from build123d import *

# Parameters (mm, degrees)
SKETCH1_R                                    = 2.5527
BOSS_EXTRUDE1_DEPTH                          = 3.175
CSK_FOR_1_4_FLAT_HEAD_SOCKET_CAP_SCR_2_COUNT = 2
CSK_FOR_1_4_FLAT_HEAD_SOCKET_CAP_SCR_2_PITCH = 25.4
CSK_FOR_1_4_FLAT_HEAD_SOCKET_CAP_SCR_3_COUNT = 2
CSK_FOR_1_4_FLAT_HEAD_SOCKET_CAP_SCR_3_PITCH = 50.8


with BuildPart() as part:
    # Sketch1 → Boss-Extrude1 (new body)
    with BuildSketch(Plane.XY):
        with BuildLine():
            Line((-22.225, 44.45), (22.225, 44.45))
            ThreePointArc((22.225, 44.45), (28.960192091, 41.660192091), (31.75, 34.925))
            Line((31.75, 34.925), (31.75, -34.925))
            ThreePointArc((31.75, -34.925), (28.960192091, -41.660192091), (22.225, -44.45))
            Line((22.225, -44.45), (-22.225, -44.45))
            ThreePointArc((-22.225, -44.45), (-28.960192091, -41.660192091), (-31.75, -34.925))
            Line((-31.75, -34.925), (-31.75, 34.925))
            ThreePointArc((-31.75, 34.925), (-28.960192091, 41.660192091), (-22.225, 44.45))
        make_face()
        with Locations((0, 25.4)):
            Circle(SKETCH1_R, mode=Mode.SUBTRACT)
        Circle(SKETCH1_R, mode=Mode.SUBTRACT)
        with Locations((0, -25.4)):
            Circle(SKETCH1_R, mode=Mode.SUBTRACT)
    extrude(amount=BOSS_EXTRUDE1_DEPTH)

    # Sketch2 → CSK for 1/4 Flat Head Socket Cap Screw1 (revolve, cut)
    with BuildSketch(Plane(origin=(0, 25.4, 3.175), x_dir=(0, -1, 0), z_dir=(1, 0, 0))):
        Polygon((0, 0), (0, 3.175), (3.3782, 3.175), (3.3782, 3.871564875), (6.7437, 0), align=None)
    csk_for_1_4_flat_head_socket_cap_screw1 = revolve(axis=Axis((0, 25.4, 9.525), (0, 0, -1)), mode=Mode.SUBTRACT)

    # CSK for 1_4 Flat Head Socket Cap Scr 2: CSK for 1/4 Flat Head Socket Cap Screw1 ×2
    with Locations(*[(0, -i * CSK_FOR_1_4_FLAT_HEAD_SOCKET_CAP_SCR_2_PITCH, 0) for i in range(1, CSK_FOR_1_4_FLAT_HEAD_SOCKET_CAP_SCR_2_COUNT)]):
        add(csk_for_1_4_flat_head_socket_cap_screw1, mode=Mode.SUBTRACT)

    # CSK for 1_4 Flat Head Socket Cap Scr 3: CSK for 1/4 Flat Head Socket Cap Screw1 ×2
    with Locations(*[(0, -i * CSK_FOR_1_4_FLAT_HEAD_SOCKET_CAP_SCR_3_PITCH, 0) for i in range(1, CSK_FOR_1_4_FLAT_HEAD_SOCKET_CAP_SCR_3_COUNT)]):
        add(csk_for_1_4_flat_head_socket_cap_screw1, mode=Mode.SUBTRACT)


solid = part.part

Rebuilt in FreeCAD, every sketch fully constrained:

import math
import FreeCAD as App
import Part
import Sketcher

V = App.Vector
Q = App.Units.Quantity


def add_polygon(sketch, points):
    """Adds a closed chain of lines whose ends are joined by coincident constraints."""
    first, n = sketch.GeometryCount, len(points)
    for a, b in zip(points, points[1:] + points[:1]):
        sketch.addGeometry(Part.LineSegment(App.Vector(*a, 0), App.Vector(*b, 0)), False)
    for i in range(n):
        sketch.addConstraint(Sketcher.Constraint("Coincident", first + i, 2, first + (i + 1) % n, 1))

doc = App.newDocument("Part")
params = doc.addObject("Spreadsheet::Sheet", "Params")
for row, (alias, value) in enumerate([
    ("sketch1_diameter", "0.201 in"),
    ("sketch1_radius", "0.375 in"),
    ("sketch1_width", "1.75 in"),
    ("sketch1_height", "2.75 in"),
    ("pad1_length", "0.125 in"),
    ("sketch2_width", "0.133 in"),
    ("sketch2_height", "0.125 in"),
    ("groove_angle", "360 deg"),
    ("linearpattern_pitch", "1 in"),
    ("linearpattern2_pitch", "2 in"),
], start=1):
    params.set(f"A{row}", alias)
    params.set(f"B{row}", "=" + value)
    params.setAlias(f"B{row}", alias)

body = doc.addObject("PartDesign::Body", "Body")

sketch1 = body.newObject("Sketcher::SketchObject", "Sketch")
sketch1.AttachmentSupport = (doc.getObject("XY_Plane"), [""])
sketch1.MapMode = "FlatFace"
sketch1.addGeometry(Part.LineSegment(V(22.2, 44.5, 0), V(-22.2, 44.5, 0)), False)
sketch1.addGeometry(Part.ArcOfCircle(Part.Circle(V(-22.2, 34.9, 0), V(0, 0, 1), 9.5), math.radians(90), math.radians(180)), False)
sketch1.addGeometry(Part.LineSegment(V(-31.8, 34.9, 0), V(-31.8, -34.9, 0)), False)
sketch1.addGeometry(Part.ArcOfCircle(Part.Circle(V(-22.2, -34.9, 0), V(0, 0, 1), 9.5), math.radians(180), math.radians(270)), False)
sketch1.addGeometry(Part.LineSegment(V(-22.2, -44.5, 0), V(22.2, -44.5, 0)), False)
sketch1.addGeometry(Part.ArcOfCircle(Part.Circle(V(22.2, -34.9, 0), V(0, 0, 1), 9.5), math.radians(-90), math.radians(0)), False)
sketch1.addGeometry(Part.LineSegment(V(31.8, -34.9, 0), V(31.8, 34.9, 0)), False)
sketch1.addGeometry(Part.ArcOfCircle(Part.Circle(V(22.2, 34.9, 0), V(0, 0, 1), 9.5), math.radians(0), math.radians(90)), False)
sketch1.addGeometry(Part.Circle(V(0, -25.4, 0), V(0, 0, 1), 2.6), False)
sketch1.addGeometry(Part.Circle(V(0, 0, 0), V(0, 0, 1), 2.6), False)
sketch1.addGeometry(Part.Circle(V(0, 25.4, 0), V(0, 0, 1), 2.6), False)
sketch1.addConstraint(Sketcher.Constraint("Tangent", 0, 2, 1, 1))
sketch1.addConstraint(Sketcher.Constraint("Tangent", 1, 2, 2, 1))
sketch1.addConstraint(Sketcher.Constraint("Tangent", 2, 2, 3, 1))
sketch1.addConstraint(Sketcher.Constraint("Tangent", 3, 2, 4, 1))
sketch1.addConstraint(Sketcher.Constraint("Tangent", 4, 2, 5, 1))
sketch1.addConstraint(Sketcher.Constraint("Tangent", 5, 2, 6, 1))
sketch1.addConstraint(Sketcher.Constraint("Tangent", 6, 2, 7, 1))
sketch1.addConstraint(Sketcher.Constraint("Tangent", 7, 2, 0, 1))
sketch1.addConstraint(Sketcher.Constraint("Horizontal", 0))
sketch1.addConstraint(Sketcher.Constraint("Vertical", 2))
sketch1.addConstraint(Sketcher.Constraint("Horizontal", 4))
sketch1.addConstraint(Sketcher.Constraint("Vertical", 6))
sketch1.addConstraint(Sketcher.Constraint("Coincident", 9, 3, -1, 1))
sketch1.addConstraint(Sketcher.Constraint("Equal", 1, 3))
sketch1.addConstraint(Sketcher.Constraint("Equal", 3, 5))
sketch1.addConstraint(Sketcher.Constraint("Equal", 5, 7))
sketch1.addConstraint(Sketcher.Constraint("Equal", 8, 9))
sketch1.addConstraint(Sketcher.Constraint("Equal", 9, 10))
sketch1.addConstraint(Sketcher.Constraint("Symmetric", 1, 3, 5, 3, -1, 1))
sketch1.addConstraint(Sketcher.Constraint("Symmetric", 8, 3, 10, 3, -1, 1))
sketch1.addConstraint(Sketcher.Constraint("PointOnObject", 8, 3, -2))
sketch1.addConstraint(Sketcher.Constraint("Diameter", 8, Q("0.201 in")))
sketch1.addConstraint(Sketcher.Constraint("DistanceY", 8, 3, -1, 1, Q("1 in")))
sketch1.addConstraint(Sketcher.Constraint("Radius", 1, Q("0.375 in")))
sketch1.addConstraint(Sketcher.Constraint("DistanceX", 0, 2, 0, 1, Q("1.75 in")))
sketch1.addConstraint(Sketcher.Constraint("DistanceY", 2, 2, 2, 1, Q("2.75 in")))
sketch1.setExpression("Constraints[21]", "Params.sketch1_diameter")
sketch1.setExpression("Constraints[23]", "Params.sketch1_radius")
sketch1.setExpression("Constraints[24]", "Params.sketch1_width")
sketch1.setExpression("Constraints[25]", "Params.sketch1_height")
pad1 = body.newObject("PartDesign::Pad", "Pad")
pad1.Profile = sketch1
pad1.setExpression("Length", "Params.pad1_length")

sketch2 = body.newObject("Sketcher::SketchObject", "Sketch001")
sketch2.AttachmentSupport = (doc.getObject("YZ_Plane"), [""])
sketch2.MapMode = "FlatFace"
add_polygon(sketch2, [(25.4, 0), (25.4, 3.2), (18.7, 3.2), (22, -0.7), (22, 0)])
sketch2.addGeometry(Part.LineSegment(V(25.4, 3.2, 0), V(25.4, -0.7, 0)), True)
sketch2.addConstraint(Sketcher.Constraint("Vertical", 0))
sketch2.addConstraint(Sketcher.Constraint("Horizontal", 1))
sketch2.addConstraint(Sketcher.Constraint("Vertical", 3))
sketch2.addConstraint(Sketcher.Constraint("Horizontal", 4))
sketch2.addConstraint(Sketcher.Constraint("Vertical", 5))
sketch2.addConstraint(Sketcher.Constraint("Coincident", 5, 1, 0, 2))
sketch2.addConstraint(Sketcher.Constraint("PointOnObject", 3, 2, -1))
sketch2.addConstraint(Sketcher.Constraint("Horizontal", 2, 2, 5, 2))
sketch2.addConstraint(Sketcher.Constraint("DistanceX", -1, 1, 0, 2, Q("1 in")))
sketch2.addConstraint(Sketcher.Constraint("Angle", 2, Q("-49 deg")))
sketch2.addConstraint(Sketcher.Constraint("DistanceX", 4, 1, 4, 2, Q("0.133 in")))
sketch2.addConstraint(Sketcher.Constraint("DistanceY", 0, 1, 0, 2, Q("0.125 in")))
sketch2.addConstraint(Sketcher.Constraint("DistanceX", 1, 2, 1, 1, Q("0.2655 in")))
sketch2.setExpression("Constraints[15]", "Params.sketch2_width")
sketch2.setExpression("Constraints[16]", "Params.sketch2_height")
groove = body.newObject("PartDesign::Groove", "Groove")
groove.Profile = sketch2
groove.ReferenceAxis = (sketch2, ["Axis0"])
groove.setExpression("Angle", "Params.groove_angle")
doc.recompute()

linearpattern = body.newObject("PartDesign::LinearPattern", "LinearPattern")
linearpattern.Originals = [groove]
linearpattern.Direction = (doc.getObject("Y_Axis"), [""])
linearpattern.Mode = "offset"
linearpattern.setExpression("Offset", "Params.linearpattern_pitch")
linearpattern.Occurrences = 2
linearpattern.Reversed = True
body.Tip = linearpattern
doc.recompute()

linearpattern2 = body.newObject("PartDesign::LinearPattern", "LinearPattern001")
linearpattern2.Originals = [groove]
linearpattern2.Direction = (doc.getObject("Y_Axis"), [""])
linearpattern2.Mode = "offset"
linearpattern2.setExpression("Offset", "Params.linearpattern2_pitch")
linearpattern2.Occurrences = 2
linearpattern2.Reversed = True
body.Tip = linearpattern2

doc.recompute()
